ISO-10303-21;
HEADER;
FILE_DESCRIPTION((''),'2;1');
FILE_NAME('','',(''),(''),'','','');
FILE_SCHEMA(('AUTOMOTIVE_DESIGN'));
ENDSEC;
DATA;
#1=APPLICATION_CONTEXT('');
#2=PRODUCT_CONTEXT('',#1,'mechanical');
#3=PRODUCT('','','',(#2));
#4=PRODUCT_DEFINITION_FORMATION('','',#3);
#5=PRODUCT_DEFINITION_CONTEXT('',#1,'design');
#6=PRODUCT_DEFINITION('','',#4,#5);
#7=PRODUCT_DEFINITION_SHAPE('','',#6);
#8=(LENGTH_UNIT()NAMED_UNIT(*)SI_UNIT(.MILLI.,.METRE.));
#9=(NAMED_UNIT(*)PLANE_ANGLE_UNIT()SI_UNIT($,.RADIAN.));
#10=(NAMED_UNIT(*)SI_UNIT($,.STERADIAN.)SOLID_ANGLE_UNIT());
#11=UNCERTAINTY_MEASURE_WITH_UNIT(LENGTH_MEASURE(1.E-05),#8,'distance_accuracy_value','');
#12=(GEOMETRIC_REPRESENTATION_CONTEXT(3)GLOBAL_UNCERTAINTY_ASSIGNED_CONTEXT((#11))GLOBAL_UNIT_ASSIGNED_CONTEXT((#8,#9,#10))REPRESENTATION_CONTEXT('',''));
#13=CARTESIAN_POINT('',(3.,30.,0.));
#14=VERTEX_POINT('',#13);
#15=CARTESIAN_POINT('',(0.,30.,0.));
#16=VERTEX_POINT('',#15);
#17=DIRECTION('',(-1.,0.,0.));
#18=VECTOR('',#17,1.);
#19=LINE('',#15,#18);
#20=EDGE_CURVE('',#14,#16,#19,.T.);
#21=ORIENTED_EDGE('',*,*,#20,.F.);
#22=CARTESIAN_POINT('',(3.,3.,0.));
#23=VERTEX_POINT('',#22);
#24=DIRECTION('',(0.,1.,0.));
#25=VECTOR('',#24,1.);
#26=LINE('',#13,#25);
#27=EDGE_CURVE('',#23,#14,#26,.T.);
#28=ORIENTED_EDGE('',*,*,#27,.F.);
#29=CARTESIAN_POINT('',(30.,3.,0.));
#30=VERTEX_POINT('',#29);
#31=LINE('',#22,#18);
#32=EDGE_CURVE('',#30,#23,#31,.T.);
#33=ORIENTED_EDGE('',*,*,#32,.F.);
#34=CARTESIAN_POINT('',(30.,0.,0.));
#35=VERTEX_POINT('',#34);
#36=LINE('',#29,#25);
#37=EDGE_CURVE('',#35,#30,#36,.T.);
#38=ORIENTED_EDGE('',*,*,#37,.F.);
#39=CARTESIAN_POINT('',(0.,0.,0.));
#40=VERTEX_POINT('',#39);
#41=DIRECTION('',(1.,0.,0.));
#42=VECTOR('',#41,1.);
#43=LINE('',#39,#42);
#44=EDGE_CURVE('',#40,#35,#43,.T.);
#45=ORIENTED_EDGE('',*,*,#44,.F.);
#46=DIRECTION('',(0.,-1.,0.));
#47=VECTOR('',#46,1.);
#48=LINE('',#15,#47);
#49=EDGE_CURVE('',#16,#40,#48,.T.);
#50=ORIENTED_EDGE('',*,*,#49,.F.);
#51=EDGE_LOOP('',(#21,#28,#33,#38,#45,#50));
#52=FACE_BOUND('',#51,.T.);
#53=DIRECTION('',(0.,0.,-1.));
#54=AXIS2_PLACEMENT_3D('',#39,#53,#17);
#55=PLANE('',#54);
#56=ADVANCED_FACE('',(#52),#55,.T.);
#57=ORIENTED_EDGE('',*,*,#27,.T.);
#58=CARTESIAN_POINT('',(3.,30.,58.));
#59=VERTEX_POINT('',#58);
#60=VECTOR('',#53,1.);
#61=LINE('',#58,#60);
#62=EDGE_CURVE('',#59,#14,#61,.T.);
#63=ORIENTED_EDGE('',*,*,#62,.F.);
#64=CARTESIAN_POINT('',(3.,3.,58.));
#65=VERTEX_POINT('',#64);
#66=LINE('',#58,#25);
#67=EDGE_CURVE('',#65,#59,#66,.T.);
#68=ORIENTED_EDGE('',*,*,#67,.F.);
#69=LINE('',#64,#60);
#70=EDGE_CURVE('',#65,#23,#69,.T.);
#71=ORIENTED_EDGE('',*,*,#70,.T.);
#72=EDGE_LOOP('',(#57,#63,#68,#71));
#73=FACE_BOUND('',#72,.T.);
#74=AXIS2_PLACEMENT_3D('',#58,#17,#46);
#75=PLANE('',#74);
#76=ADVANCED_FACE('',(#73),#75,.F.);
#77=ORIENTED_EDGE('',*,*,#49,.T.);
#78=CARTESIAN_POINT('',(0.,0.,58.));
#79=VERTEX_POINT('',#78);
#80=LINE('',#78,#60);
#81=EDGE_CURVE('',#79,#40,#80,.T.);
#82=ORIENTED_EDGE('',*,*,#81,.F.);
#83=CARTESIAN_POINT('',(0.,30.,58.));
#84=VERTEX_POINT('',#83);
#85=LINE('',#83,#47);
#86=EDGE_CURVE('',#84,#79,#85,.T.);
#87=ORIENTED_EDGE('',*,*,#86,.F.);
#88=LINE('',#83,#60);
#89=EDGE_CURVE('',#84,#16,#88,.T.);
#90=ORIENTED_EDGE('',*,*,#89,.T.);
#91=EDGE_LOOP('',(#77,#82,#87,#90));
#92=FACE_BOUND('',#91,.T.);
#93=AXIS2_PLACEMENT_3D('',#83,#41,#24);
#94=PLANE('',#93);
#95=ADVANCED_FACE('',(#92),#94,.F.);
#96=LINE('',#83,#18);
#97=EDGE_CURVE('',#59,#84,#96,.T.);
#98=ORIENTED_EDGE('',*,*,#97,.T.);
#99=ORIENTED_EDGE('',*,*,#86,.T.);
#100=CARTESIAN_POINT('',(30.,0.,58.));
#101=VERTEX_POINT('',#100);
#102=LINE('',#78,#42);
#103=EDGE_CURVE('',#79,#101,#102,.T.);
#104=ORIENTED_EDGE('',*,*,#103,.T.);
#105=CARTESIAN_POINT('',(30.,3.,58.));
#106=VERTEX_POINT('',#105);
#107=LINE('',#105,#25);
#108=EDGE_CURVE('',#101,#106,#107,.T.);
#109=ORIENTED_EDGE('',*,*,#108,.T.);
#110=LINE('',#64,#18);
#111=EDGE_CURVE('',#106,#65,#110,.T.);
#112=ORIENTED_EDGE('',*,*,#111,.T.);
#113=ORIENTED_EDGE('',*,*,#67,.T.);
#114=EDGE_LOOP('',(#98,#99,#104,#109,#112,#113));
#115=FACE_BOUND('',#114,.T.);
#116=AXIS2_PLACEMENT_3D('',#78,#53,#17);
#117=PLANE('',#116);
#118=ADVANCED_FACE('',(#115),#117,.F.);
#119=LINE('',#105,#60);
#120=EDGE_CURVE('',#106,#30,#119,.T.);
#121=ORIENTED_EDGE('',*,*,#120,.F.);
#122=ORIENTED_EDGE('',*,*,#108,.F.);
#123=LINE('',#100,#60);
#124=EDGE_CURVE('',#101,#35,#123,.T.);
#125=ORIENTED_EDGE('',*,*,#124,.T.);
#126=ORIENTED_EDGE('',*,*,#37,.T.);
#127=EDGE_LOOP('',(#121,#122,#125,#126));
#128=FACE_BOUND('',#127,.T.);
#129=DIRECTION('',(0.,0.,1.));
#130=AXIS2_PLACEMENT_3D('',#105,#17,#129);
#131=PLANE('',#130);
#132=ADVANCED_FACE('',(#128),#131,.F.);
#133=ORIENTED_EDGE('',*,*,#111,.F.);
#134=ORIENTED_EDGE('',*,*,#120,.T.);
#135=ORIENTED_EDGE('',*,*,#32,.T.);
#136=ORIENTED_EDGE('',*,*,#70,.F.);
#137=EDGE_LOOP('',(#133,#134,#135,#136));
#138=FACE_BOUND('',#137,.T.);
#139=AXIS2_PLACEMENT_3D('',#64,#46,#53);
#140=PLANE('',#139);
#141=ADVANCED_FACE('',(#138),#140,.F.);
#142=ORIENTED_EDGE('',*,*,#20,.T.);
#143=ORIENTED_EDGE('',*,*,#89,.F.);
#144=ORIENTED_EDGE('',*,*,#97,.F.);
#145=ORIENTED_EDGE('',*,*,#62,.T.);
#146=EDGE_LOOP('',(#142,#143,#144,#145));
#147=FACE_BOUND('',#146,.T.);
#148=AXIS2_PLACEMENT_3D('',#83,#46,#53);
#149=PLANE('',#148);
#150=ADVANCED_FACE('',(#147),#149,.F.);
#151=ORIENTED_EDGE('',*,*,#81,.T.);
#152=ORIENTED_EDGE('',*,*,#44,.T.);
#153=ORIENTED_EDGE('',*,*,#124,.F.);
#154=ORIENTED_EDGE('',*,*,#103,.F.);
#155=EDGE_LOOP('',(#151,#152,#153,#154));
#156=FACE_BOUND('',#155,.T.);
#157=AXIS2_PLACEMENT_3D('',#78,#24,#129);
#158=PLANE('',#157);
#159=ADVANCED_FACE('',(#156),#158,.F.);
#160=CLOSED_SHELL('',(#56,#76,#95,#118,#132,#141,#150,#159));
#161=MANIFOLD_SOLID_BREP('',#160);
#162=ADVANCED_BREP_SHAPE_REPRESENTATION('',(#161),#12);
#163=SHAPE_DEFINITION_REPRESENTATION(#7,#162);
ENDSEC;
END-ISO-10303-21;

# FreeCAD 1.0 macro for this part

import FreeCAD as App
import Part
import Sketcher
Q = App.Units.Quantity

doc = App.newDocument("Part")
body = doc.addObject("PartDesign::Body", "Body")

# Sketch on XY plane
sketch1 = doc.addObject("Sketcher::SketchObject", "Sketch")
body.addObject(sketch1)
sketch1.AttachmentSupport = (doc.XY_Plane, [""])
sketch1.MapMode = "FlatFace"
sketch1.addGeometry([
    Part.LineSegment(App.Vector(0, 30, 0), App.Vector(0, 0, 0)),  # 0
    Part.LineSegment(App.Vector(0, 0, 0), App.Vector(30, 0, 0)),  # 1
    Part.LineSegment(App.Vector(30, 0, 0), App.Vector(30, 3, 0)),  # 2
    Part.LineSegment(App.Vector(30, 3, 0), App.Vector(3, 3, 0)),  # 3
    Part.LineSegment(App.Vector(3, 3, 0), App.Vector(3, 30, 0)),  # 4
    Part.LineSegment(App.Vector(3, 30, 0), App.Vector(0, 30, 0)),  # 5
], False)
sketch1.addConstraint([
    Sketcher.Constraint("Coincident", 0, 2, 1, 1),
    Sketcher.Constraint("Coincident", 1, 2, 2, 1),
    Sketcher.Constraint("Coincident", 2, 2, 3, 1),
    Sketcher.Constraint("Coincident", 3, 2, 4, 1),
    Sketcher.Constraint("Coincident", 4, 2, 5, 1),
    Sketcher.Constraint("Coincident", 5, 2, 0, 1),
    Sketcher.Constraint("Vertical", 0),
    Sketcher.Constraint("Horizontal", 1),
    Sketcher.Constraint("Vertical", 2),
    Sketcher.Constraint("Horizontal", 3),
    Sketcher.Constraint("Vertical", 4),
    Sketcher.Constraint("Horizontal", 5),
    Sketcher.Constraint("Coincident", 0, 2, -1, 1),
    Sketcher.Constraint("Equal", 1, 0),
    Sketcher.Constraint("Equal", 5, 2),
    Sketcher.Constraint("DistanceX", 1, 1, 1, 2, Q("30 mm")),
    Sketcher.Constraint("DistanceX", 3, 2, 3, 1, Q("27 mm")),
])
pad1 = doc.addObject("PartDesign::Pad", "Pad")
body.addObject(pad1)
pad1.Profile = sketch1
pad1.Length = 58

doc.recompute()
